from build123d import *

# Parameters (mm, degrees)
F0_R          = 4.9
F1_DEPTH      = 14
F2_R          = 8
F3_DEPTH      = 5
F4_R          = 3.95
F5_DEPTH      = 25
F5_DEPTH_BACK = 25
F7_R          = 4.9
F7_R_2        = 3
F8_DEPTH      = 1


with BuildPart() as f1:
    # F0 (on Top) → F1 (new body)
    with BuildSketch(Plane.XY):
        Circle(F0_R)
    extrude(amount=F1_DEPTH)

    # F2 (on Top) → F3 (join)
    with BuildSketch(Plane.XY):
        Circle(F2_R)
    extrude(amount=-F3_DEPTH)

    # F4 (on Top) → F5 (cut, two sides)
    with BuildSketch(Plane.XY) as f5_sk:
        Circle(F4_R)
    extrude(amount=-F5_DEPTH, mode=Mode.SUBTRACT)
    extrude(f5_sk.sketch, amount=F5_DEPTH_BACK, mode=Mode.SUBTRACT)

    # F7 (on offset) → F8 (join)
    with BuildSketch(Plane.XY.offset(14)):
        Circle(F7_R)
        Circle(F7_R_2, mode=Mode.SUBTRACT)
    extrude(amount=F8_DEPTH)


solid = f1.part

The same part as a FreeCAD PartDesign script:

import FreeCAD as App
import Part
import Sketcher
from FreeCAD import Vector

doc = App.newDocument("Part")
params = doc.addObject("Spreadsheet::Sheet", "Params")
for row, (alias, value) in enumerate([
    ("sketch1_diameter", "9.8 mm"),
    ("pad1_length", "14 mm"),
    ("sketch2_diameter", "16 mm"),
    ("pad2_length", "5 mm"),
    ("sketch3_diameter", "7.9 mm"),
    ("sketch4_diameter", "6 mm"),
    ("sketch4_diameter2", "9.8 mm"),
    ("pad3_length", "1 mm"),
], start=1):
    params.set(f"A{row}", alias)
    params.set(f"B{row}", "=" + value)
    params.setAlias(f"B{row}", alias)

body = doc.addObject("PartDesign::Body", "Body")

# Sketch on XY plane
sketch1 = body.newObject("Sketcher::SketchObject", "Sketch")
sketch1.AttachmentSupport = (doc.getObject("XY_Plane"), [""])
sketch1.MapMode = "FlatFace"
sketch1.addGeometry(Part.Circle(Vector(0, 0, 0), Vector(0, 0, 1), 4.9), False)
sketch1.addConstraint([
    Sketcher.Constraint("Coincident", 0, 3, -1, 1),
    Sketcher.Constraint("Diameter", 0, 9.8),
])
sketch1.setExpression("Constraints[1]", "Params.sketch1_diameter")
pad1 = body.newObject("PartDesign::Pad", "Pad")
pad1.Profile = sketch1
pad1.setExpression("Length", "Params.pad1_length")

# Sketch on XY plane
sketch2 = body.newObject("Sketcher::SketchObject", "Sketch001")
sketch2.AttachmentSupport = (doc.getObject("XY_Plane"), [""])
sketch2.MapMode = "FlatFace"
sketch2.addGeometry(Part.Circle(Vector(0, 0, 0), Vector(0, 0, 1), 8), False)
sketch2.addConstraint([
    Sketcher.Constraint("Coincident", 0, 3, -1, 1),
    Sketcher.Constraint("Diameter", 0, 16.0),
])
sketch2.setExpression("Constraints[1]", "Params.sketch2_diameter")
pad2 = body.newObject("PartDesign::Pad", "Pad001")
pad2.Profile = sketch2
pad2.setExpression("Length", "Params.pad2_length")
pad2.Reversed = True

# Sketch on XY plane
sketch3 = body.newObject("Sketcher::SketchObject", "Sketch002")
sketch3.AttachmentSupport = (doc.getObject("XY_Plane"), [""])
sketch3.MapMode = "FlatFace"
sketch3.addGeometry(Part.Circle(Vector(0, 0, 0), Vector(0, 0, 1), 4), False)
sketch3.addConstraint([
    Sketcher.Constraint("Coincident", 0, 3, -1, 1),
    Sketcher.Constraint("Diameter", 0, 7.9),
])
sketch3.setExpression("Constraints[1]", "Params.sketch3_diameter")
pocket1 = body.newObject("PartDesign::Pocket", "Pocket")
pocket1.Profile = sketch3
pocket1.Type = "ThroughAll"
pocket1.Midplane = True

# Sketch on XY plane
sketch4 = body.newObject("Sketcher::SketchObject", "Sketch003")
sketch4.AttachmentSupport = (doc.getObject("XY_Plane"), [""])
sketch4.MapMode = "FlatFace"
sketch4.AttachmentOffset = App.Placement(Vector(0, 0, 14), App.Rotation())
sketch4.addGeometry([
    Part.Circle(Vector(0, 0, 0), Vector(0, 0, 1), 4.9),
    Part.Circle(Vector(0, 0, 0), Vector(0, 0, 1), 3),
], False)
sketch4.addConstraint([
    Sketcher.Constraint("Coincident", 0, 3, -1, 1),
    Sketcher.Constraint("Coincident", 1, 3, -1, 1),
    Sketcher.Constraint("Diameter", 1, 6.0),
    Sketcher.Constraint("Diameter", 0, 9.8),
])
sketch4.setExpression("Constraints[2]", "Params.sketch4_diameter")
sketch4.setExpression("Constraints[3]", "Params.sketch4_diameter2")
pad3 = body.newObject("PartDesign::Pad", "Pad002")
pad3.Profile = sketch4
pad3.setExpression("Length", "Params.pad3_length")

doc.recompute()
